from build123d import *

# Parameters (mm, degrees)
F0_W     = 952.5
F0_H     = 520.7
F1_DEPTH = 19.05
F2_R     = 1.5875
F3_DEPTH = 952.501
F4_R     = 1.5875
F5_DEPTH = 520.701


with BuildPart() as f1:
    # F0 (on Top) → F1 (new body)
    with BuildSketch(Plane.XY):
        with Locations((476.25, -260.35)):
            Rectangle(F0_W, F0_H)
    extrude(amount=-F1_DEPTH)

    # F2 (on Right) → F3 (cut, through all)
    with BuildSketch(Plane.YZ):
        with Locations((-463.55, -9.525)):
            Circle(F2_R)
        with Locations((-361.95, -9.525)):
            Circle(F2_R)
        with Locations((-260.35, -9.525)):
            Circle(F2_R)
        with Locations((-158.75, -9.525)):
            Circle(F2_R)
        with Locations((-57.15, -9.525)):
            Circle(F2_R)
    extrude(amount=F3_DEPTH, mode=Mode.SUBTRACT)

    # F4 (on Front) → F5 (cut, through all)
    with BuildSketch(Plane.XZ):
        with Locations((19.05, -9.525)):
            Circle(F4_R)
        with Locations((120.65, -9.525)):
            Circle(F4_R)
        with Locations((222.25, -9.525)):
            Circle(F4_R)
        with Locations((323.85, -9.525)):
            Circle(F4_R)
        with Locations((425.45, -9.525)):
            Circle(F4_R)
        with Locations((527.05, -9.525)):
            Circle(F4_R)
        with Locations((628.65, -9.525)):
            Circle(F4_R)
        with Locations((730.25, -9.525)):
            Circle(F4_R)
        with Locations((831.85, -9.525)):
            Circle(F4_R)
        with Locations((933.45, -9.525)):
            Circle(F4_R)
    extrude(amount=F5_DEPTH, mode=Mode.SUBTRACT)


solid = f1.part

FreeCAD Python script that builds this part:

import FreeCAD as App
import Part
import Sketcher
Q = App.Units.Quantity


def add_polygon(sketch, points):
    """Adds a closed chain of lines whose ends are joined by coincident constraints."""
    first, n = sketch.GeometryCount, len(points)
    for a, b in zip(points, points[1:] + points[:1]):
        sketch.addGeometry(Part.LineSegment(App.Vector(*a, 0), App.Vector(*b, 0)), False)
    for i in range(n):
        sketch.addConstraint(Sketcher.Constraint("Coincident", first + i, 2, first + (i + 1) % n, 1))

doc = App.newDocument("Part")
body = doc.addObject("PartDesign::Body", "Body")

# Sketch on XY plane
sketch1 = body.newObject("Sketcher::SketchObject", "Sketch")
sketch1.AttachmentSupport = (doc.getObject("XY_Plane"), [""])
sketch1.MapMode = "FlatFace"
add_polygon(sketch1, [(0, 0), (0, -521), (952, -521), (952, 0)])  # lines 0-3
sketch1.addConstraint([
    Sketcher.Constraint("Vertical", 0),
    Sketcher.Constraint("Horizontal", 1),
    Sketcher.Constraint("Vertical", 2),
    Sketcher.Constraint("Horizontal", 3),
    Sketcher.Constraint("Coincident", 3, 2, -1, 1),
    Sketcher.Constraint("DistanceX", 1, 1, 1, 2, Q("37.5 in")),
    Sketcher.Constraint("DistanceY", 0, 2, 0, 1, Q("20.5 in")),
])
pad1 = body.newObject("PartDesign::Pad", "Pad")
pad1.Profile = sketch1
pad1.Length = Q("0.75 in")
pad1.Reversed = True

# Sketch on YZ plane
sketch2 = body.newObject("Sketcher::SketchObject", "Sketch001")
sketch2.AttachmentSupport = (doc.getObject("YZ_Plane"), [""])
sketch2.MapMode = "FlatFace"
sketch2.addGeometry([
    Part.Circle(App.Vector(-463.6, -9.5, 0), App.Vector(0, 0, 1), 1.6),  # 0
    Part.Circle(App.Vector(-361.9, -9.5, 0), App.Vector(0, 0, 1), 1.6),  # 1
    Part.Circle(App.Vector(-260.4, -9.5, 0), App.Vector(0, 0, 1), 1.6),  # 2
    Part.Circle(App.Vector(-158.8, -9.5, 0), App.Vector(0, 0, 1), 1.6),  # 3
    Part.Circle(App.Vector(-57.1, -9.5, 0), App.Vector(0, 0, 1), 1.6),  # 4
], False)
sketch2.addConstraint([
    Sketcher.Constraint("Equal", 0, 1),
    Sketcher.Constraint("Equal", 1, 2),
    Sketcher.Constraint("Equal", 2, 3),
    Sketcher.Constraint("Equal", 3, 4),
    Sketcher.Constraint("Horizontal", 0, 3, 1, 3),
    Sketcher.Constraint("Horizontal", 1, 3, 2, 3),
    Sketcher.Constraint("Horizontal", 2, 3, 3, 3),
    Sketcher.Constraint("Horizontal", 3, 3, 4, 3),
    Sketcher.Constraint("Diameter", 0, Q("0.125 in")),
    Sketcher.Constraint("DistanceX", 0, 3, 1, 3, Q("4 in")),
    Sketcher.Constraint("DistanceX", 1, 3, 2, 3, Q("4 in")),
    Sketcher.Constraint("DistanceX", 2, 3, 3, 3, Q("4 in")),
    Sketcher.Constraint("DistanceX", 3, 3, 4, 3, Q("4 in")),
    Sketcher.Constraint("DistanceX", 0, 3, -1, 1, Q("18.25 in")),
    Sketcher.Constraint("DistanceY", 0, 3, -1, 1, Q("0.375 in")),
])
pocket1 = body.newObject("PartDesign::Pocket", "Pocket")
pocket1.Profile = sketch2
pocket1.Type = "ThroughAll"
pocket1.Reversed = True

# Sketch on XZ plane
sketch3 = body.newObject("Sketcher::SketchObject", "Sketch002")
sketch3.AttachmentSupport = (doc.getObject("XZ_Plane"), [""])
sketch3.MapMode = "FlatFace"
sketch3.addGeometry([
    Part.Circle(App.Vector(19.1, -9.5, 0), App.Vector(0, 0, 1), 1.6),  # 0
    Part.Circle(App.Vector(120.7, -9.5, 0), App.Vector(0, 0, 1), 1.6),  # 1
    Part.Circle(App.Vector(222.2, -9.5, 0), App.Vector(0, 0, 1), 1.6),  # 2
    Part.Circle(App.Vector(323.9, -9.5, 0), App.Vector(0, 0, 1), 1.6),  # 3
    Part.Circle(App.Vector(425.4, -9.5, 0), App.Vector(0, 0, 1), 1.6),  # 4
    Part.Circle(App.Vector(527, -9.5, 0), App.Vector(0, 0, 1), 1.6),  # 5
    Part.Circle(App.Vector(628.6, -9.5, 0), App.Vector(0, 0, 1), 1.6),  # 6
    Part.Circle(App.Vector(730.2, -9.5, 0), App.Vector(0, 0, 1), 1.6),  # 7
    Part.Circle(App.Vector(831.9, -9.5, 0), App.Vector(0, 0, 1), 1.6),  # 8
    Part.Circle(App.Vector(933.5, -9.5, 0), App.Vector(0, 0, 1), 1.6),  # 9
], False)
sketch3.addConstraint([
    Sketcher.Constraint("Equal", 0, 1),
    Sketcher.Constraint("Equal", 1, 2),
    Sketcher.Constraint("Equal", 2, 3),
    Sketcher.Constraint("Equal", 3, 4),
    Sketcher.Constraint("Equal", 4, 5),
    Sketcher.Constraint("Equal", 5, 6),
    Sketcher.Constraint("Equal", 6, 7),
    Sketcher.Constraint("Equal", 7, 8),
    Sketcher.Constraint("Equal", 8, 9),
    Sketcher.Constraint("Horizontal", 0, 3, 1, 3),
    Sketcher.Constraint("Horizontal", 1, 3, 2, 3),
    Sketcher.Constraint("Horizontal", 2, 3, 3, 3),
    Sketcher.Constraint("Horizontal", 3, 3, 4, 3),
    Sketcher.Constraint("Horizontal", 4, 3, 5, 3),
    Sketcher.Constraint("Horizontal", 5, 3, 6, 3),
    Sketcher.Constraint("Horizontal", 6, 3, 7, 3),
    Sketcher.Constraint("Horizontal", 7, 3, 8, 3),
    Sketcher.Constraint("Horizontal", 8, 3, 9, 3),
    Sketcher.Constraint("Diameter", 0, Q("0.125 in")),
    Sketcher.Constraint("DistanceX", 0, 3, 1, 3, Q("4 in")),
    Sketcher.Constraint("DistanceX", 1, 3, 2, 3, Q("4 in")),
    Sketcher.Constraint("DistanceX", 2, 3, 3, 3, Q("4 in")),
    Sketcher.Constraint("DistanceX", 3, 3, 4, 3, Q("4 in")),
    Sketcher.Constraint("DistanceX", 4, 3, 5, 3, Q("4 in")),
    Sketcher.Constraint("DistanceX", 5, 3, 6, 3, Q("4 in")),
    Sketcher.Constraint("DistanceX", 6, 3, 7, 3, Q("4 in")),
    Sketcher.Constraint("DistanceX", 7, 3, 8, 3, Q("4 in")),
    Sketcher.Constraint("DistanceX", 8, 3, 9, 3, Q("4 in")),
    Sketcher.Constraint("DistanceX", -1, 1, 0, 3, Q("0.75 in")),
    Sketcher.Constraint("DistanceY", 0, 3, -1, 1, Q("0.375 in")),
])
pocket2 = body.newObject("PartDesign::Pocket", "Pocket001")
pocket2.Profile = sketch3
pocket2.Type = "ThroughAll"
pocket2.Reversed = True

doc.recompute()
